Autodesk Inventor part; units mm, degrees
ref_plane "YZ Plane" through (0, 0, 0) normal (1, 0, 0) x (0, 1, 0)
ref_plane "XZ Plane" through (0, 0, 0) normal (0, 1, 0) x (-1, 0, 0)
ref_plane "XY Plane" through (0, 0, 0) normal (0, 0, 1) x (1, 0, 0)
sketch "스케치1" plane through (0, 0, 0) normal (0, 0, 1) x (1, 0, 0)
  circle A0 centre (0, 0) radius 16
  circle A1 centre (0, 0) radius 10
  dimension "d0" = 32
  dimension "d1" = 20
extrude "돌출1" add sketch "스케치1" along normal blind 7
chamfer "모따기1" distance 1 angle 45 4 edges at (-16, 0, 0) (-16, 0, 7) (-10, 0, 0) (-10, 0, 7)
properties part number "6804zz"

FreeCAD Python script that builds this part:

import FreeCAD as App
import Part
import Sketcher

V = App.Vector


def edges_at(feature, points):
    """Names of the edges that pass closest to the given points."""
    edges = feature.Shape.Edges
    near = lambda p: min(range(len(edges)), key=lambda i: edges[i].distToShape(Part.Vertex(*p))[0])
    return sorted({f"Edge{near(p) + 1}" for p in points})

doc = App.newDocument("Part")
params = doc.addObject("Spreadsheet::Sheet", "Params")
for row, (alias, value) in enumerate([
    ("sketch1_diameter", "32 mm"),
    ("sketch1_diameter2", "20 mm"),
    ("pad1_length", "7 mm"),
    ("chamfer_size", "1 mm"),
], start=1):
    params.set(f"A{row}", alias)
    params.set(f"B{row}", "=" + value)
    params.setAlias(f"B{row}", alias)

body = doc.addObject("PartDesign::Body", "Body")

# Sketch on XY plane
sketch1 = body.newObject("Sketcher::SketchObject", "Sketch")
sketch1.AttachmentSupport = (doc.getObject("XY_Plane"), [""])
sketch1.MapMode = "FlatFace"
sketch1.addGeometry([
    Part.Circle(V(0, 0, 0), V(0, 0, 1), 16),
    Part.Circle(V(0, 0, 0), V(0, 0, 1), 10),
], False)
sketch1.addConstraint([
    Sketcher.Constraint("Coincident", 0, 3, -1, 1),
    Sketcher.Constraint("Coincident", 1, 3, -1, 1),
    Sketcher.Constraint("Diameter", 0, 32.0),
    Sketcher.Constraint("Diameter", 1, 20.0),
])
sketch1.setExpression("Constraints[2]", "Params.sketch1_diameter")
sketch1.setExpression("Constraints[3]", "Params.sketch1_diameter2")
pad1 = body.newObject("PartDesign::Pad", "Pad")
pad1.Profile = sketch1
pad1.setExpression("Length", "Params.pad1_length")
doc.recompute()

chamfer = body.newObject("PartDesign::Chamfer", "Chamfer")
chamfer.Base = (pad1, edges_at(pad1, [
    (-16, 0, 0),
    (-16, 0, 7),
    (-10, 0, 0),
    (-10, 0, 7),
]))
chamfer.setExpression("Size", "Params.chamfer_size")

doc.recompute()
